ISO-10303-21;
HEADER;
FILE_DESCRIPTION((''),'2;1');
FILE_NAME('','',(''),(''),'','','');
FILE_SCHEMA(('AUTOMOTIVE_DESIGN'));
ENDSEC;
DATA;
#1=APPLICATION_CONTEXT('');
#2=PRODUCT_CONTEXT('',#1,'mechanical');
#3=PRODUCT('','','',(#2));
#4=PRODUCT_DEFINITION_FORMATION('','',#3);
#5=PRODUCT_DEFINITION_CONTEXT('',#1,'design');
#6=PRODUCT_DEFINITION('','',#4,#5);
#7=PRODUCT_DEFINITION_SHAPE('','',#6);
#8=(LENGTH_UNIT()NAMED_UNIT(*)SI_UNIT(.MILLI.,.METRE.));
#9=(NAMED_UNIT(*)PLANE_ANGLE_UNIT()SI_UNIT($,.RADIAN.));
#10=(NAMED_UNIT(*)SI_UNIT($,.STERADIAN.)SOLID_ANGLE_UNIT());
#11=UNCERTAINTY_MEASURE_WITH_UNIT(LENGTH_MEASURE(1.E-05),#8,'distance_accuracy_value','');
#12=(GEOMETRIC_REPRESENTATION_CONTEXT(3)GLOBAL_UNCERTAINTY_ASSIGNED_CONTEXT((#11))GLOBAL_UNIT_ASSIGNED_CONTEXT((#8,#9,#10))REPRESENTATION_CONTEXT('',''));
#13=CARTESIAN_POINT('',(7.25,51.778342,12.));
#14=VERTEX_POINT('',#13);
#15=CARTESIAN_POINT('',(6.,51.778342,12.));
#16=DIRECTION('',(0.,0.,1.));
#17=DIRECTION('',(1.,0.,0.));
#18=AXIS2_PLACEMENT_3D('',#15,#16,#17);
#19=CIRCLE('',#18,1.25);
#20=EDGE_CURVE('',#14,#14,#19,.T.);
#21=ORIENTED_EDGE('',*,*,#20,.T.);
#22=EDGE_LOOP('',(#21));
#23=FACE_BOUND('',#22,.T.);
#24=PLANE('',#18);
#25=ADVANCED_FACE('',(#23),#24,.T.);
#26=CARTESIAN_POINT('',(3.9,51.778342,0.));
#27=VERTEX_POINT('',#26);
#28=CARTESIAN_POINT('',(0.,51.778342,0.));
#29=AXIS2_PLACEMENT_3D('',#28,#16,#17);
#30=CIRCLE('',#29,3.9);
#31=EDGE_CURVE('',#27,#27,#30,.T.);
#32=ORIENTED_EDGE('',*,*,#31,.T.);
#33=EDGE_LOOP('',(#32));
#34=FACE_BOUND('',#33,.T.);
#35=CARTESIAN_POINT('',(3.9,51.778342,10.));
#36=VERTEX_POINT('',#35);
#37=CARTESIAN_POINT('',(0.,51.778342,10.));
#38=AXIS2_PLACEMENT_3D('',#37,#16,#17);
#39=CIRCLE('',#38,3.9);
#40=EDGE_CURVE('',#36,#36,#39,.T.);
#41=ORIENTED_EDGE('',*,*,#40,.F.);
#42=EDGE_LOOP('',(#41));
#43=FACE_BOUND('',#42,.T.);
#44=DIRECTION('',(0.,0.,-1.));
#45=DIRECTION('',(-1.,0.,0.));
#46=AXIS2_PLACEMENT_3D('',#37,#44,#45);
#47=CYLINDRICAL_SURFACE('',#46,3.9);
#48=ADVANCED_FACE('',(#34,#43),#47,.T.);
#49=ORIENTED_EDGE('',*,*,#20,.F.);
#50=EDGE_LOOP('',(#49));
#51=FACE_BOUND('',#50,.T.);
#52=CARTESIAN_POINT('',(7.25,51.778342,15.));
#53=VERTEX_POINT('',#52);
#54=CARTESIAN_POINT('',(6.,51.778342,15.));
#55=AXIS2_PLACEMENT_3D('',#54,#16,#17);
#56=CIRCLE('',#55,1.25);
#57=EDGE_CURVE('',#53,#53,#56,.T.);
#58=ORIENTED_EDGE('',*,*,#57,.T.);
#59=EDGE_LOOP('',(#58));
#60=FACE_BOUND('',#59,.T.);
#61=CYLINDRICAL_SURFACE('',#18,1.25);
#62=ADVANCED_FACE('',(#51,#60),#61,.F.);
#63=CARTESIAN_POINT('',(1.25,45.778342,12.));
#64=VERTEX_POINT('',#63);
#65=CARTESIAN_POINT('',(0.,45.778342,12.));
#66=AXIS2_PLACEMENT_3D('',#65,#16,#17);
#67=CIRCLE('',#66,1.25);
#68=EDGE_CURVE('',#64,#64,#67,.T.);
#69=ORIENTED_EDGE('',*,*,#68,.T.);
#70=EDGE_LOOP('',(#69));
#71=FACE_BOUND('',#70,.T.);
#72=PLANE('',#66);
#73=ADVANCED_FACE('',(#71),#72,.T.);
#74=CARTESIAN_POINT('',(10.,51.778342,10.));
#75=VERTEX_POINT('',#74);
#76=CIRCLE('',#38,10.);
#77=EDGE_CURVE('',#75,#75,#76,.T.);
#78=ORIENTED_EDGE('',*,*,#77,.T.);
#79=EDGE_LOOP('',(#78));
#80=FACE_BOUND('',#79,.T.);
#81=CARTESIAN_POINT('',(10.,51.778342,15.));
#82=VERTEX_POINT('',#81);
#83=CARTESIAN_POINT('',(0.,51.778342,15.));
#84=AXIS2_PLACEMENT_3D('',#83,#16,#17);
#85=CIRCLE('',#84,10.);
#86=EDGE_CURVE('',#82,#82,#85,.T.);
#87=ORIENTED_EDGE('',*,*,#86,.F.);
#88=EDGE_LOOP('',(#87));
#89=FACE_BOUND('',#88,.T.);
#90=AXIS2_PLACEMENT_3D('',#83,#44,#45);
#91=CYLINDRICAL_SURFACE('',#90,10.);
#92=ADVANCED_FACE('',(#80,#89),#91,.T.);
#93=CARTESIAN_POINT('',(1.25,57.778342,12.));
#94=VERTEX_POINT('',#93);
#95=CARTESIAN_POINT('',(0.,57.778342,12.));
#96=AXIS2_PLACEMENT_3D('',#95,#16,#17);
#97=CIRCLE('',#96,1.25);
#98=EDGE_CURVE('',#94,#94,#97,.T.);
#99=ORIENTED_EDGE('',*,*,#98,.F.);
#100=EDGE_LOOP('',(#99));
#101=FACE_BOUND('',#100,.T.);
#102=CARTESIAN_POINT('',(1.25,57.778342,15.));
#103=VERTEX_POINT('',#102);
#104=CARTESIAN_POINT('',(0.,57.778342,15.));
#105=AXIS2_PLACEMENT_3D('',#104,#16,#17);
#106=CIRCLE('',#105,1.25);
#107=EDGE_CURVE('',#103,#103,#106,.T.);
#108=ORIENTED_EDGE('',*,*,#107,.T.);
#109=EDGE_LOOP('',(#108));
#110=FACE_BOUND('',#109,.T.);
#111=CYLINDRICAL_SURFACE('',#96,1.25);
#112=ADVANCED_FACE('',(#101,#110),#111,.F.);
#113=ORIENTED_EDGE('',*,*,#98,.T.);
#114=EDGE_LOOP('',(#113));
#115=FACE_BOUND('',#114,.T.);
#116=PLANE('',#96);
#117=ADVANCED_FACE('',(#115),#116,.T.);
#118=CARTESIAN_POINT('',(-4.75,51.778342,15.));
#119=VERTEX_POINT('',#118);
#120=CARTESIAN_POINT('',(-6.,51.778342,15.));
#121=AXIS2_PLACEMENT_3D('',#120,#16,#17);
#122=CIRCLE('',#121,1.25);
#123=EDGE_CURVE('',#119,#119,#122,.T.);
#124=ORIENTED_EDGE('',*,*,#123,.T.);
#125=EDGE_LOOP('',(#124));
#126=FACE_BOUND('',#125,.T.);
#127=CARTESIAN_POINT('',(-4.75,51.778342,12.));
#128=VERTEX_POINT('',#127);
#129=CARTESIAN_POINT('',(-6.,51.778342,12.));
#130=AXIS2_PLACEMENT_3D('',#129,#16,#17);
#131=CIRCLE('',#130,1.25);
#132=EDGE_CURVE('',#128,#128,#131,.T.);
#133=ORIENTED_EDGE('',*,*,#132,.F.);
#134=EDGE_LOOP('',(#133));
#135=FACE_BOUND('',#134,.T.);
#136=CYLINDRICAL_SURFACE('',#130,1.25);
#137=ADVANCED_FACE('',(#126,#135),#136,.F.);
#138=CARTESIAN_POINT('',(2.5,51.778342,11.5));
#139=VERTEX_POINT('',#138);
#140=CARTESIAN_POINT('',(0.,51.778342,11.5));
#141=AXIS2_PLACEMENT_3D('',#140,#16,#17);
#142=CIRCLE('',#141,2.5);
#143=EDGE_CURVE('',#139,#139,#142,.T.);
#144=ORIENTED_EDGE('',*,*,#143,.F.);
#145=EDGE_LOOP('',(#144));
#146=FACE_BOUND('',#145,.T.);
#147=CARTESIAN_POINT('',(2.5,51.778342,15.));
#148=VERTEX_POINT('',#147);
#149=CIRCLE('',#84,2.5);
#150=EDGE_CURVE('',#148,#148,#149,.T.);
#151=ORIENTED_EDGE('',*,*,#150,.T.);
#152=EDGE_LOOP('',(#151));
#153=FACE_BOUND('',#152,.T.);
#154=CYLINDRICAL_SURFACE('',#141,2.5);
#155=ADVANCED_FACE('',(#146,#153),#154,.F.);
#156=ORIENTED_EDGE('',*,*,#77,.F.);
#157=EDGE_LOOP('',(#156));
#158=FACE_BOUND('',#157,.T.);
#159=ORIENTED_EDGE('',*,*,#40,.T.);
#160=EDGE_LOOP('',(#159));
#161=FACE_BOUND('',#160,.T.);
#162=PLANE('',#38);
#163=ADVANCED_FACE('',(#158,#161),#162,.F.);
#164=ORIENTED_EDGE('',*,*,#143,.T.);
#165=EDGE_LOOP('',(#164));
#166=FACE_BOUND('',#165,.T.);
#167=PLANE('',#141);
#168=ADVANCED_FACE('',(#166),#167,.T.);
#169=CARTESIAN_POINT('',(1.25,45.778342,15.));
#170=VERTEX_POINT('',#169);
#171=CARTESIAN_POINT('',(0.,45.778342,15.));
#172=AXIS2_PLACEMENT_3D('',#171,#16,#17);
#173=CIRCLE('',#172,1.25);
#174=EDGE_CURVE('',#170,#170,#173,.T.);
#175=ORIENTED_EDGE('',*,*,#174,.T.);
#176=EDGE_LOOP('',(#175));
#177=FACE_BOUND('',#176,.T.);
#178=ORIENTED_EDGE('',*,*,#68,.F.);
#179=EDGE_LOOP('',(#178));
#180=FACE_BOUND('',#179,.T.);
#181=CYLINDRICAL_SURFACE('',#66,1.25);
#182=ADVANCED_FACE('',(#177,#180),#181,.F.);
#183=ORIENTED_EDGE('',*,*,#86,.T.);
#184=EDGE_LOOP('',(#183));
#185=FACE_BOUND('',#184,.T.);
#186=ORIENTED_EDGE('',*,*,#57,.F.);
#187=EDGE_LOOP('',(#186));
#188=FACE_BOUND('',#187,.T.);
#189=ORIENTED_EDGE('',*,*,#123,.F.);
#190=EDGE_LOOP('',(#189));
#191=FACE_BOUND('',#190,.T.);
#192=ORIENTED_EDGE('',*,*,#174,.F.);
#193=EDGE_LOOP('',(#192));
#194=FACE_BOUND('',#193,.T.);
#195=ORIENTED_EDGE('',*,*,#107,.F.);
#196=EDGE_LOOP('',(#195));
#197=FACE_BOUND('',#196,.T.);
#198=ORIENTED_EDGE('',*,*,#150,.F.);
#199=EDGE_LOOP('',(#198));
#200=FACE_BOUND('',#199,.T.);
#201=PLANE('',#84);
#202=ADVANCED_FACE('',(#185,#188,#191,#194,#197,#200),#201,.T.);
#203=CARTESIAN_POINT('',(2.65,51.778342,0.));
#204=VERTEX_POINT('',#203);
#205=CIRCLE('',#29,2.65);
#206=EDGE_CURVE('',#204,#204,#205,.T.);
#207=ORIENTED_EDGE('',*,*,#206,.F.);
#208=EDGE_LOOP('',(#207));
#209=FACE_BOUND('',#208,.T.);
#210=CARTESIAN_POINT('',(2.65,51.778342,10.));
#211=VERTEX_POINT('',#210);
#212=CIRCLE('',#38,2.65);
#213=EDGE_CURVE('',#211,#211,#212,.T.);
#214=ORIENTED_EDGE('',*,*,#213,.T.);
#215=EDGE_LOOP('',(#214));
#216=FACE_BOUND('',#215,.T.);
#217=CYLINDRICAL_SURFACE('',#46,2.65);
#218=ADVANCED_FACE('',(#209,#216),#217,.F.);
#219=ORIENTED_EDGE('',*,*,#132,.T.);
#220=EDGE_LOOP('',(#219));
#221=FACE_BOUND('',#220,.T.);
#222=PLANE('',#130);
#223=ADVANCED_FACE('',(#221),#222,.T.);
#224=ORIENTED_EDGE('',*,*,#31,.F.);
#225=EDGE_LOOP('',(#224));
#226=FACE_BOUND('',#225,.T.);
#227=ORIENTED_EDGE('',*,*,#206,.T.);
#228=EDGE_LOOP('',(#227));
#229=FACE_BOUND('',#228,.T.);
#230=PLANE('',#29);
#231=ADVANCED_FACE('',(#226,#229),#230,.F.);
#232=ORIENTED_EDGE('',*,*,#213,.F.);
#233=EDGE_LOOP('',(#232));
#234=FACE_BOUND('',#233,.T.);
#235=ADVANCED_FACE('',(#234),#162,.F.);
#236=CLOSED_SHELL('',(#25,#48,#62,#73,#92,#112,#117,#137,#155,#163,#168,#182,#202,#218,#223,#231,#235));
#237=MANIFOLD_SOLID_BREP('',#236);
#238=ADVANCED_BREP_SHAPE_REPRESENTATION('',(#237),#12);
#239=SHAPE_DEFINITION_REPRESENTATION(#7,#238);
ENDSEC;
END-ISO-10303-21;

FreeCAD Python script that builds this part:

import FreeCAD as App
import Part
import Sketcher

doc = App.newDocument("Part")
body = doc.addObject("PartDesign::Body", "Body")

# Sketch on XY plane
sketch1 = doc.addObject("Sketcher::SketchObject", "Sketch")
body.addObject(sketch1)
sketch1.AttachmentSupport = (doc.XY_Plane, [""])
sketch1.MapMode = "FlatFace"
sketch1.addGeometry([
    Part.Circle(App.Vector(0, 51.778342, 0), App.Vector(0, 0, 1), 3.9),
    Part.Circle(App.Vector(0, 51.778342, 0), App.Vector(0, 0, 1), 2.65),
], False)
sketch1.addConstraint([
    Sketcher.Constraint("Coincident", 1, 3, 0, 3),
    Sketcher.Constraint("PointOnObject", 0, 3, -2),
    Sketcher.Constraint("Diameter", 0, 7.8),
    Sketcher.Constraint("Diameter", 1, 5.3),
    Sketcher.Constraint("DistanceY", -1, 1, 0, 3, 51.778342),
])
pad1 = doc.addObject("PartDesign::Pad", "Pad")
body.addObject(pad1)
pad1.Profile = sketch1
pad1.Length = 10

# Sketch on XY plane
sketch2 = doc.addObject("Sketcher::SketchObject", "Sketch001")
body.addObject(sketch2)
sketch2.AttachmentSupport = (doc.XY_Plane, [""])
sketch2.MapMode = "FlatFace"
sketch2.AttachmentOffset = App.Placement(App.Vector(0, 0, 10), App.Rotation())
sketch2.addGeometry(Part.Circle(App.Vector(0, 51.778342, 0), App.Vector(0, 0, 1), 10), False)
sketch2.addConstraint([
    Sketcher.Constraint("PointOnObject", 0, 3, -2),
    Sketcher.Constraint("Diameter", 0, 20.0),
    Sketcher.Constraint("DistanceY", -1, 1, 0, 3, 51.778342),
])
pad2 = doc.addObject("PartDesign::Pad", "Pad001")
body.addObject(pad2)
pad2.Profile = sketch2
pad2.Length = 5

# Sketch on XY plane
sketch3 = doc.addObject("Sketcher::SketchObject", "Sketch002")
body.addObject(sketch3)
sketch3.AttachmentSupport = (doc.XY_Plane, [""])
sketch3.MapMode = "FlatFace"
sketch3.AttachmentOffset = App.Placement(App.Vector(0, 0, 15), App.Rotation())
sketch3.addGeometry([
    Part.Circle(App.Vector(6, 51.778342, 0), App.Vector(0, 0, 1), 1.25),
    Part.Circle(App.Vector(0, 57.778342, 0), App.Vector(0, 0, 1), 1.25),
    Part.Circle(App.Vector(0, 45.778342, 0), App.Vector(0, 0, 1), 1.25),
    Part.Circle(App.Vector(-6, 51.778342, 0), App.Vector(0, 0, 1), 1.25),
], False)
sketch3.addConstraint([
    Sketcher.Constraint("Equal", 0, 1),
    Sketcher.Constraint("Equal", 1, 2),
    Sketcher.Constraint("Equal", 2, 3),
    Sketcher.Constraint("Symmetric", 0, 3, 3, 3, -2),
    Sketcher.Constraint("PointOnObject", 1, 3, -2),
    Sketcher.Constraint("PointOnObject", 2, 3, -2),
    Sketcher.Constraint("Diameter", 0, 2.5),
    Sketcher.Constraint("DistanceX", -1, 1, 0, 3, 6.0),
    Sketcher.Constraint("DistanceY", 0, 3, 1, 3, 6.0),
    Sketcher.Constraint("DistanceY", 2, 3, 0, 3, 6.0),
    Sketcher.Constraint("DistanceY", -1, 1, 0, 3, 51.778342),
])
pocket1 = doc.addObject("PartDesign::Pocket", "Pocket")
body.addObject(pocket1)
pocket1.Profile = sketch3
pocket1.Length = 3

# Sketch on XY plane
sketch4 = doc.addObject("Sketcher::SketchObject", "Sketch003")
body.addObject(sketch4)
sketch4.AttachmentSupport = (doc.XY_Plane, [""])
sketch4.MapMode = "FlatFace"
sketch4.AttachmentOffset = App.Placement(App.Vector(0, 0, 15), App.Rotation())
sketch4.addGeometry(Part.Circle(App.Vector(0, 51.778342, 0), App.Vector(0, 0, 1), 2.5), False)
sketch4.addConstraint([
    Sketcher.Constraint("PointOnObject", 0, 3, -2),
    Sketcher.Constraint("Diameter", 0, 5.0),
    Sketcher.Constraint("DistanceY", -1, 1, 0, 3, 51.778342),
])
pocket2 = doc.addObject("PartDesign::Pocket", "Pocket001")
body.addObject(pocket2)
pocket2.Profile = sketch4
pocket2.Length = 3.5

doc.recompute()
